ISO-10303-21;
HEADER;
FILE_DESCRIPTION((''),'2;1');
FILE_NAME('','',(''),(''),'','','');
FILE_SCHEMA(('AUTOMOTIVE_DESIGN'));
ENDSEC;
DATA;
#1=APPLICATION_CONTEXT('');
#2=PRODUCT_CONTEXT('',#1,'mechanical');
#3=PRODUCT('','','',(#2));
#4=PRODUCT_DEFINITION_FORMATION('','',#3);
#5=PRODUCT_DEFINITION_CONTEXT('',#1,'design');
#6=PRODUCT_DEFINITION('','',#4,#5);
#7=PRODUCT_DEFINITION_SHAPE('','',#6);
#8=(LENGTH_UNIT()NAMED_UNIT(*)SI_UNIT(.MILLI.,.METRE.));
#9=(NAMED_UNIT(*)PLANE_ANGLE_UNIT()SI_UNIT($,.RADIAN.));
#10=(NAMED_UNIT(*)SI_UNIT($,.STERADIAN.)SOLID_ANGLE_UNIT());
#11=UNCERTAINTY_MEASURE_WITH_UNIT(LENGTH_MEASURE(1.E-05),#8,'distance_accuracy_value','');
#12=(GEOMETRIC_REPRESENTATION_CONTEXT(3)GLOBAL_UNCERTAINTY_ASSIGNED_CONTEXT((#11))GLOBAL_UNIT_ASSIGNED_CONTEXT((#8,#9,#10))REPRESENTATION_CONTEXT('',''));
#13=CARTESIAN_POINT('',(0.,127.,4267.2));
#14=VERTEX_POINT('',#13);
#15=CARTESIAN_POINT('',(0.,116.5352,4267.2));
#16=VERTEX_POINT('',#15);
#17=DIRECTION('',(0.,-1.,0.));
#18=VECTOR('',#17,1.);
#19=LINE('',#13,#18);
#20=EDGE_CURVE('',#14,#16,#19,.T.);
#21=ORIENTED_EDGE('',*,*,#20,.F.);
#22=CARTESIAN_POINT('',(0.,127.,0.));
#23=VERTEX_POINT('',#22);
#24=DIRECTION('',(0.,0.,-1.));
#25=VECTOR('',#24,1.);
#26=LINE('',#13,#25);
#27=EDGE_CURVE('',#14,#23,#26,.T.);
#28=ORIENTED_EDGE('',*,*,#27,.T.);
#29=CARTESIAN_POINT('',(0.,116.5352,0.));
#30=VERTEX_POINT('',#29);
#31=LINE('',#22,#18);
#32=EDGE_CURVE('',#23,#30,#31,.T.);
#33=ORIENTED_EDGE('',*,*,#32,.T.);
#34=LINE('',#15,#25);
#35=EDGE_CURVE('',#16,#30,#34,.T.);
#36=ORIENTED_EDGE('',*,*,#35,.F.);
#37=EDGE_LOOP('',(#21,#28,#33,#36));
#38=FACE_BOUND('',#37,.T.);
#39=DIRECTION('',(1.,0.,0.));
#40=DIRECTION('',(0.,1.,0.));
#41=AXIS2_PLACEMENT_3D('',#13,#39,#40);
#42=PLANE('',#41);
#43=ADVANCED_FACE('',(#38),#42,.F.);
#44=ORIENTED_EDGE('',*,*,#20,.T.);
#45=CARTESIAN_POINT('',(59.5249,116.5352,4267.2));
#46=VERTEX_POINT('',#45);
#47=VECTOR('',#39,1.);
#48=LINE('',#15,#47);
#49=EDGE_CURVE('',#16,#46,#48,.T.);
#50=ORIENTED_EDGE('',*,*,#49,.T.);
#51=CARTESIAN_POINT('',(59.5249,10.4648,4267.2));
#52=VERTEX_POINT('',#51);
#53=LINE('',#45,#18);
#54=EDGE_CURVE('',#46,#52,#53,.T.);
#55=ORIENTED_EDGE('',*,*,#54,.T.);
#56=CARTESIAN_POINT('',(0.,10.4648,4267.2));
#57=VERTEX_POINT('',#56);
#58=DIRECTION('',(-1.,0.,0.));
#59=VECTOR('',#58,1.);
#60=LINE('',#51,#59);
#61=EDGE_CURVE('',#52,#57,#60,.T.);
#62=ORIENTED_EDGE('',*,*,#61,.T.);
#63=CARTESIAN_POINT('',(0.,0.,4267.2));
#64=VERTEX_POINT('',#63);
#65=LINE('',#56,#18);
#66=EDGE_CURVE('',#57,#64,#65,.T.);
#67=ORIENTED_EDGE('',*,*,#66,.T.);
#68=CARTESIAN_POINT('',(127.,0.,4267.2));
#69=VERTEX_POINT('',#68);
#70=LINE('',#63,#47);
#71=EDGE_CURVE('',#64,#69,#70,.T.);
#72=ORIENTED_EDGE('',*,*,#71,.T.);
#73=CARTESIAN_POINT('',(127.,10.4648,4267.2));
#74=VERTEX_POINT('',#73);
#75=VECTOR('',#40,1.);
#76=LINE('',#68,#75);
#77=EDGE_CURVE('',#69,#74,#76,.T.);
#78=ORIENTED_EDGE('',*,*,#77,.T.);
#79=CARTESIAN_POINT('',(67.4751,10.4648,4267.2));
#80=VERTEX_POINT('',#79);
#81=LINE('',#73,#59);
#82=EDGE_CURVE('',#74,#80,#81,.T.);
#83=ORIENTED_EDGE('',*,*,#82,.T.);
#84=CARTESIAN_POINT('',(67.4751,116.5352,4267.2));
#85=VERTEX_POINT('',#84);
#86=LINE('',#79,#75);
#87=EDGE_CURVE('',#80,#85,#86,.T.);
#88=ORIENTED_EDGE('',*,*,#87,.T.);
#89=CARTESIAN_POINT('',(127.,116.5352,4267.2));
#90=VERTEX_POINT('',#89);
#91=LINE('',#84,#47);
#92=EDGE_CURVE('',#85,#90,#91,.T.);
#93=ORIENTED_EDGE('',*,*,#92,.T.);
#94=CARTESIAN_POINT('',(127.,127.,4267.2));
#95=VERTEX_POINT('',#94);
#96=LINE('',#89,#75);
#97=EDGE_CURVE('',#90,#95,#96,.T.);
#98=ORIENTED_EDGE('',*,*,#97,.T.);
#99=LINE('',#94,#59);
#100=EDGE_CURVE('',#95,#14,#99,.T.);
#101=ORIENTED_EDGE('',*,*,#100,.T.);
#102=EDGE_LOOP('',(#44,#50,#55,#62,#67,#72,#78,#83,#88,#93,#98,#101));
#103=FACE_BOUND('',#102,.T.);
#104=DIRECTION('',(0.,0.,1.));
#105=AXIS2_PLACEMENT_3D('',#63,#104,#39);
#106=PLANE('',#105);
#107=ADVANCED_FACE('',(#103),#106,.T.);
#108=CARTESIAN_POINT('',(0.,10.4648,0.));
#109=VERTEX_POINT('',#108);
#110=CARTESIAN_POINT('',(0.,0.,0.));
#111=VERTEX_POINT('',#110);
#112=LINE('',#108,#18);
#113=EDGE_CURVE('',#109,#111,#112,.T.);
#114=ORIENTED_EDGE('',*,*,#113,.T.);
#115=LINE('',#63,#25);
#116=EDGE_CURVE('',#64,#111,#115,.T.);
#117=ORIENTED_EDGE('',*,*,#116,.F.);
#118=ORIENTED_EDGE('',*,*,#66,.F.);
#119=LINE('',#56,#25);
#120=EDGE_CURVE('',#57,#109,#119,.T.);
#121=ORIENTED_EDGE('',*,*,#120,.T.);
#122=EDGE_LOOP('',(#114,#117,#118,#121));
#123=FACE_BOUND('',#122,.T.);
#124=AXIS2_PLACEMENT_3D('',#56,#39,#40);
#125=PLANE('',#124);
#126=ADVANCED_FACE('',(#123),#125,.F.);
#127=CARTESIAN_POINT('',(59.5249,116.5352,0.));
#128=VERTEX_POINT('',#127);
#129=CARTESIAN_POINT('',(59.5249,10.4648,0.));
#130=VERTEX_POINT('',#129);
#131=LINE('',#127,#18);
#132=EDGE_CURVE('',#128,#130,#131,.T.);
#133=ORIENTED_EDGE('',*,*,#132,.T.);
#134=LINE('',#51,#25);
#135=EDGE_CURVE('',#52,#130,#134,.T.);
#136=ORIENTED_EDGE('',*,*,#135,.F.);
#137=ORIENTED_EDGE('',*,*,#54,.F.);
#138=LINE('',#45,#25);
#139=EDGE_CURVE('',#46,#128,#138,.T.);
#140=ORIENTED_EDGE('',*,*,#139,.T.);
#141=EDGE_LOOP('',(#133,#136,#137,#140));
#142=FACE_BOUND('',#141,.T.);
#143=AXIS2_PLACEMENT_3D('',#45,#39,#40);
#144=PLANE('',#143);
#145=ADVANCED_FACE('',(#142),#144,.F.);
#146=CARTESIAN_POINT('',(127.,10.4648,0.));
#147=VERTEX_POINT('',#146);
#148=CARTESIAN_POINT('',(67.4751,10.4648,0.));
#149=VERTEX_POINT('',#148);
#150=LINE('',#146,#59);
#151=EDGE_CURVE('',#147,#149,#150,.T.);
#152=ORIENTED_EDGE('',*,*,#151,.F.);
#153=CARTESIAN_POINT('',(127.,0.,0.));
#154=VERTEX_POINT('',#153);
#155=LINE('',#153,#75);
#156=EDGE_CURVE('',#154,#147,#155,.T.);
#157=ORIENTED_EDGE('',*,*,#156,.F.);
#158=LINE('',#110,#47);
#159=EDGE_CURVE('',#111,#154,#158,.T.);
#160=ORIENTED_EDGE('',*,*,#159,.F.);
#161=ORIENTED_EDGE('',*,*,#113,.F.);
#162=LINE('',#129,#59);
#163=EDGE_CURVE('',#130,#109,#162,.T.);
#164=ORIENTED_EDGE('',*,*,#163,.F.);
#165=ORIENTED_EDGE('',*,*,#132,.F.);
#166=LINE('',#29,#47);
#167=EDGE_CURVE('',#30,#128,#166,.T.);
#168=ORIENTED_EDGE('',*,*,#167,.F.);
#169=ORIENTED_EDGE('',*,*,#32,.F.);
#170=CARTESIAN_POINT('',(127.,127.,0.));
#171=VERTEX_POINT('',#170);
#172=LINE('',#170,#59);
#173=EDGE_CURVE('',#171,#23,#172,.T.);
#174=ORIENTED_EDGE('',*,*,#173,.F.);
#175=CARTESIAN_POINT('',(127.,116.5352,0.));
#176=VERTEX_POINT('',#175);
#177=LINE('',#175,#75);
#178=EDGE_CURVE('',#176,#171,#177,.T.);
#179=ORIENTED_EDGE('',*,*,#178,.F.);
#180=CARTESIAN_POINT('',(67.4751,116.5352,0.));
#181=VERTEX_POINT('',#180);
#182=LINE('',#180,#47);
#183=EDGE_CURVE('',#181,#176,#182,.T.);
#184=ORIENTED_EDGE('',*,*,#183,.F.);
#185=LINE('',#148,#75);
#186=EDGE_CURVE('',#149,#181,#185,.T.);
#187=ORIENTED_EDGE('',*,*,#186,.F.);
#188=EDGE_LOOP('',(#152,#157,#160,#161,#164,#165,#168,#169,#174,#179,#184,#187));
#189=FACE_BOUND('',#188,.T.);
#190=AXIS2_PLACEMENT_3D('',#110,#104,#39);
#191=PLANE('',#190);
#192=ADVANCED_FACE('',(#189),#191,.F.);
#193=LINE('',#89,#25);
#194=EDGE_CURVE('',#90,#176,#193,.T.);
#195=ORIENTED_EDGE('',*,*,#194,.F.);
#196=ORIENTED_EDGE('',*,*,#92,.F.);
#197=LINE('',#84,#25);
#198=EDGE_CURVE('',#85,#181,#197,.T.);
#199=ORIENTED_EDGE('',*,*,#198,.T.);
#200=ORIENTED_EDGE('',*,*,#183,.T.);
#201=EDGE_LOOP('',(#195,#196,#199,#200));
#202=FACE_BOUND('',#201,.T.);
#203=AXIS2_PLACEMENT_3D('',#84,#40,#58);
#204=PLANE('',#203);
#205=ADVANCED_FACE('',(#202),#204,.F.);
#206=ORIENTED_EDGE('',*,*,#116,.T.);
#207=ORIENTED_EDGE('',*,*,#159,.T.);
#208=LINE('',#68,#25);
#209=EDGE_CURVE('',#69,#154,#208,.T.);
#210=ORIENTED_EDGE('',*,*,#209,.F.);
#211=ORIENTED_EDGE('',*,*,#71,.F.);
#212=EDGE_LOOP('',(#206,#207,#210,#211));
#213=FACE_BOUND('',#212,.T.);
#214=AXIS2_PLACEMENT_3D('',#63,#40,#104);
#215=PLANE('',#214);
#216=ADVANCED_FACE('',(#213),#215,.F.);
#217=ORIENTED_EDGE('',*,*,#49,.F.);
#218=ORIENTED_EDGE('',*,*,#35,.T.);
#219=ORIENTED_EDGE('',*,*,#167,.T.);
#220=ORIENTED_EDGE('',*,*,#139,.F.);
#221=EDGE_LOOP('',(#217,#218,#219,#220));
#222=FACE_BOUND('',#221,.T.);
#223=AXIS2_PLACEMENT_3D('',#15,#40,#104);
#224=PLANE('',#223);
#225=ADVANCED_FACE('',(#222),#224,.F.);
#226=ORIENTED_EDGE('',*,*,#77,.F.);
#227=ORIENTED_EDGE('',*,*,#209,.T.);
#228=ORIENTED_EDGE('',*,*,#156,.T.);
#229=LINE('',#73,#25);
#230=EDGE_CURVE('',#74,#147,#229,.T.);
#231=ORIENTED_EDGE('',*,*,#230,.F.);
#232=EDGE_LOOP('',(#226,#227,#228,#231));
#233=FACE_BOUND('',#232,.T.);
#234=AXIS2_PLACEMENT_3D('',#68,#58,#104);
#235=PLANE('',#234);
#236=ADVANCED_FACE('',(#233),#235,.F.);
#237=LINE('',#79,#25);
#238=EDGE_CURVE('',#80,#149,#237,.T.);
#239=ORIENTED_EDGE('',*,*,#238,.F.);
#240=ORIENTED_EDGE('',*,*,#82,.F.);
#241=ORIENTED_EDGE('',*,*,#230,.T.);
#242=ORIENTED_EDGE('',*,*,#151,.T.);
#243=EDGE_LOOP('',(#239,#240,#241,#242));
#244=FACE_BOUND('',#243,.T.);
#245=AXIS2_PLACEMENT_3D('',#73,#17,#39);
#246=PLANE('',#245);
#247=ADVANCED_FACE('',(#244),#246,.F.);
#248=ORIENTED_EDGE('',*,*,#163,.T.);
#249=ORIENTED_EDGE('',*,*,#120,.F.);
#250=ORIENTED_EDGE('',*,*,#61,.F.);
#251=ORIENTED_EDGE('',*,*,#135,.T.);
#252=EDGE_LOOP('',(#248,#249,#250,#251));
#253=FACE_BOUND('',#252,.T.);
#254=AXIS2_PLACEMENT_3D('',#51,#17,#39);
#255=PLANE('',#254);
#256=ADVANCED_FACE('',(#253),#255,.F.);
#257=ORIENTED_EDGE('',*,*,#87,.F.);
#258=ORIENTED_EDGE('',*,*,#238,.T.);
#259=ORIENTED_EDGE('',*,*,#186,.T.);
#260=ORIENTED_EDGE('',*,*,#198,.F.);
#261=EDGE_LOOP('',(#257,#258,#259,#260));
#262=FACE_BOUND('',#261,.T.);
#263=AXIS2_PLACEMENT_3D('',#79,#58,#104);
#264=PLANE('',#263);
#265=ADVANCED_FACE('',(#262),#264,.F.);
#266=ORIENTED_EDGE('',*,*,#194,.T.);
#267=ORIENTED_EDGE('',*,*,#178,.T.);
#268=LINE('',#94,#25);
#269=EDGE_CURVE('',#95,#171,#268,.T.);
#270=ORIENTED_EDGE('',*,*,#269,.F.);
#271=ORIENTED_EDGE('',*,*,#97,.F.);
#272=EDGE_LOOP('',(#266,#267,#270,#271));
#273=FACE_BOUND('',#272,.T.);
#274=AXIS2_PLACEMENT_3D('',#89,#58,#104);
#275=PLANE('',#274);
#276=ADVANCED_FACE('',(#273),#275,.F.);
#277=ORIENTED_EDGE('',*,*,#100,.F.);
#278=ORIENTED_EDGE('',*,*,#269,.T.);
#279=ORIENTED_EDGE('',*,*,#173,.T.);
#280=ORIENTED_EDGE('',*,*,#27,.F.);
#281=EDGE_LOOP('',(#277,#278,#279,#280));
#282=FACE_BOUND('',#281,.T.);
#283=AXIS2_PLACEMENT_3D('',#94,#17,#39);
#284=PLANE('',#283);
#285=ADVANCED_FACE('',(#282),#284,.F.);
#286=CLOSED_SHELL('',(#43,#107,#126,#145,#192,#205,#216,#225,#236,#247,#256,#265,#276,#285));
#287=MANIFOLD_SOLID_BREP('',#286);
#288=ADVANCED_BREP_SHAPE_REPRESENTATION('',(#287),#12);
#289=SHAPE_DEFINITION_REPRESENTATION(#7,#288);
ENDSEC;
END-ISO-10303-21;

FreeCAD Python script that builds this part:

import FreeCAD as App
import Part
import Sketcher
Q = App.Units.Quantity

doc = App.newDocument("Part")
body = doc.addObject("PartDesign::Body", "Body")

# Sketch on XY plane
sketch1 = body.newObject("Sketcher::SketchObject", "Sketch")
sketch1.AttachmentSupport = (doc.getObject("XY_Plane"), [""])
sketch1.MapMode = "FlatFace"
sketch1.addGeometry([
    Part.LineSegment(App.Vector(0, 0, 0), App.Vector(127, 0, 0)),  # 0
    Part.LineSegment(App.Vector(127, 0, 0), App.Vector(127, 10, 0)),  # 1
    Part.LineSegment(App.Vector(127, 10, 0), App.Vector(67, 10, 0)),  # 2
    Part.LineSegment(App.Vector(67, 10, 0), App.Vector(67, 117, 0)),  # 3
    Part.LineSegment(App.Vector(67, 117, 0), App.Vector(127, 117, 0)),  # 4
    Part.LineSegment(App.Vector(127, 117, 0), App.Vector(127, 127, 0)),  # 5
    Part.LineSegment(App.Vector(127, 127, 0), App.Vector(0, 127, 0)),  # 6
    Part.LineSegment(App.Vector(0, 127, 0), App.Vector(0, 117, 0)),  # 7
    Part.LineSegment(App.Vector(0, 117, 0), App.Vector(60, 117, 0)),  # 8
    Part.LineSegment(App.Vector(60, 117, 0), App.Vector(60, 10, 0)),  # 9
    Part.LineSegment(App.Vector(60, 10, 0), App.Vector(0, 10, 0)),  # 10
    Part.LineSegment(App.Vector(0, 10, 0), App.Vector(0, 0, 0)),  # 11
], False)
sketch1.addConstraint([
    Sketcher.Constraint("Coincident", 0, 2, 1, 1),
    Sketcher.Constraint("Coincident", 1, 2, 2, 1),
    Sketcher.Constraint("Coincident", 2, 2, 3, 1),
    Sketcher.Constraint("Coincident", 3, 2, 4, 1),
    Sketcher.Constraint("Coincident", 4, 2, 5, 1),
    Sketcher.Constraint("Coincident", 5, 2, 6, 1),
    Sketcher.Constraint("Coincident", 6, 2, 7, 1),
    Sketcher.Constraint("Coincident", 7, 2, 8, 1),
    Sketcher.Constraint("Coincident", 8, 2, 9, 1),
    Sketcher.Constraint("Coincident", 9, 2, 10, 1),
    Sketcher.Constraint("Coincident", 10, 2, 11, 1),
    Sketcher.Constraint("Coincident", 11, 2, 0, 1),
    Sketcher.Constraint("Horizontal", 0),
    Sketcher.Constraint("Vertical", 1),
    Sketcher.Constraint("Horizontal", 2),
    Sketcher.Constraint("Vertical", 3),
    Sketcher.Constraint("Horizontal", 4),
    Sketcher.Constraint("Vertical", 5),
    Sketcher.Constraint("Horizontal", 6),
    Sketcher.Constraint("Vertical", 7),
    Sketcher.Constraint("Horizontal", 8),
    Sketcher.Constraint("Vertical", 9),
    Sketcher.Constraint("Horizontal", 10),
    Sketcher.Constraint("Vertical", 11),
    Sketcher.Constraint("Coincident", 11, 2, -1, 1),
    Sketcher.Constraint("PointOnObject", 6, 2, -2),
    Sketcher.Constraint("Horizontal", 4, 2, 7, 2),
    Sketcher.Constraint("Horizontal", 2, 2, 9, 2),
    Sketcher.Constraint("Vertical", 1, 2, 4, 2),
    Sketcher.Constraint("Equal", 4, 8),
    Sketcher.Constraint("Equal", 1, 5),
    Sketcher.Constraint("DistanceX", 0, 1, 0, 2, Q("5 in")),
    Sketcher.Constraint("DistanceY", -1, 1, 5, 2, Q("5 in")),
    Sketcher.Constraint("DistanceY", 1, 1, 1, 2, Q("0.412 in")),
    Sketcher.Constraint("DistanceX", 2, 2, 2, 1, Q("2.3435 in")),
])
pad1 = body.newObject("PartDesign::Pad", "Pad")
pad1.Profile = sketch1
pad1.Length = Q("168 in")

doc.recompute()
